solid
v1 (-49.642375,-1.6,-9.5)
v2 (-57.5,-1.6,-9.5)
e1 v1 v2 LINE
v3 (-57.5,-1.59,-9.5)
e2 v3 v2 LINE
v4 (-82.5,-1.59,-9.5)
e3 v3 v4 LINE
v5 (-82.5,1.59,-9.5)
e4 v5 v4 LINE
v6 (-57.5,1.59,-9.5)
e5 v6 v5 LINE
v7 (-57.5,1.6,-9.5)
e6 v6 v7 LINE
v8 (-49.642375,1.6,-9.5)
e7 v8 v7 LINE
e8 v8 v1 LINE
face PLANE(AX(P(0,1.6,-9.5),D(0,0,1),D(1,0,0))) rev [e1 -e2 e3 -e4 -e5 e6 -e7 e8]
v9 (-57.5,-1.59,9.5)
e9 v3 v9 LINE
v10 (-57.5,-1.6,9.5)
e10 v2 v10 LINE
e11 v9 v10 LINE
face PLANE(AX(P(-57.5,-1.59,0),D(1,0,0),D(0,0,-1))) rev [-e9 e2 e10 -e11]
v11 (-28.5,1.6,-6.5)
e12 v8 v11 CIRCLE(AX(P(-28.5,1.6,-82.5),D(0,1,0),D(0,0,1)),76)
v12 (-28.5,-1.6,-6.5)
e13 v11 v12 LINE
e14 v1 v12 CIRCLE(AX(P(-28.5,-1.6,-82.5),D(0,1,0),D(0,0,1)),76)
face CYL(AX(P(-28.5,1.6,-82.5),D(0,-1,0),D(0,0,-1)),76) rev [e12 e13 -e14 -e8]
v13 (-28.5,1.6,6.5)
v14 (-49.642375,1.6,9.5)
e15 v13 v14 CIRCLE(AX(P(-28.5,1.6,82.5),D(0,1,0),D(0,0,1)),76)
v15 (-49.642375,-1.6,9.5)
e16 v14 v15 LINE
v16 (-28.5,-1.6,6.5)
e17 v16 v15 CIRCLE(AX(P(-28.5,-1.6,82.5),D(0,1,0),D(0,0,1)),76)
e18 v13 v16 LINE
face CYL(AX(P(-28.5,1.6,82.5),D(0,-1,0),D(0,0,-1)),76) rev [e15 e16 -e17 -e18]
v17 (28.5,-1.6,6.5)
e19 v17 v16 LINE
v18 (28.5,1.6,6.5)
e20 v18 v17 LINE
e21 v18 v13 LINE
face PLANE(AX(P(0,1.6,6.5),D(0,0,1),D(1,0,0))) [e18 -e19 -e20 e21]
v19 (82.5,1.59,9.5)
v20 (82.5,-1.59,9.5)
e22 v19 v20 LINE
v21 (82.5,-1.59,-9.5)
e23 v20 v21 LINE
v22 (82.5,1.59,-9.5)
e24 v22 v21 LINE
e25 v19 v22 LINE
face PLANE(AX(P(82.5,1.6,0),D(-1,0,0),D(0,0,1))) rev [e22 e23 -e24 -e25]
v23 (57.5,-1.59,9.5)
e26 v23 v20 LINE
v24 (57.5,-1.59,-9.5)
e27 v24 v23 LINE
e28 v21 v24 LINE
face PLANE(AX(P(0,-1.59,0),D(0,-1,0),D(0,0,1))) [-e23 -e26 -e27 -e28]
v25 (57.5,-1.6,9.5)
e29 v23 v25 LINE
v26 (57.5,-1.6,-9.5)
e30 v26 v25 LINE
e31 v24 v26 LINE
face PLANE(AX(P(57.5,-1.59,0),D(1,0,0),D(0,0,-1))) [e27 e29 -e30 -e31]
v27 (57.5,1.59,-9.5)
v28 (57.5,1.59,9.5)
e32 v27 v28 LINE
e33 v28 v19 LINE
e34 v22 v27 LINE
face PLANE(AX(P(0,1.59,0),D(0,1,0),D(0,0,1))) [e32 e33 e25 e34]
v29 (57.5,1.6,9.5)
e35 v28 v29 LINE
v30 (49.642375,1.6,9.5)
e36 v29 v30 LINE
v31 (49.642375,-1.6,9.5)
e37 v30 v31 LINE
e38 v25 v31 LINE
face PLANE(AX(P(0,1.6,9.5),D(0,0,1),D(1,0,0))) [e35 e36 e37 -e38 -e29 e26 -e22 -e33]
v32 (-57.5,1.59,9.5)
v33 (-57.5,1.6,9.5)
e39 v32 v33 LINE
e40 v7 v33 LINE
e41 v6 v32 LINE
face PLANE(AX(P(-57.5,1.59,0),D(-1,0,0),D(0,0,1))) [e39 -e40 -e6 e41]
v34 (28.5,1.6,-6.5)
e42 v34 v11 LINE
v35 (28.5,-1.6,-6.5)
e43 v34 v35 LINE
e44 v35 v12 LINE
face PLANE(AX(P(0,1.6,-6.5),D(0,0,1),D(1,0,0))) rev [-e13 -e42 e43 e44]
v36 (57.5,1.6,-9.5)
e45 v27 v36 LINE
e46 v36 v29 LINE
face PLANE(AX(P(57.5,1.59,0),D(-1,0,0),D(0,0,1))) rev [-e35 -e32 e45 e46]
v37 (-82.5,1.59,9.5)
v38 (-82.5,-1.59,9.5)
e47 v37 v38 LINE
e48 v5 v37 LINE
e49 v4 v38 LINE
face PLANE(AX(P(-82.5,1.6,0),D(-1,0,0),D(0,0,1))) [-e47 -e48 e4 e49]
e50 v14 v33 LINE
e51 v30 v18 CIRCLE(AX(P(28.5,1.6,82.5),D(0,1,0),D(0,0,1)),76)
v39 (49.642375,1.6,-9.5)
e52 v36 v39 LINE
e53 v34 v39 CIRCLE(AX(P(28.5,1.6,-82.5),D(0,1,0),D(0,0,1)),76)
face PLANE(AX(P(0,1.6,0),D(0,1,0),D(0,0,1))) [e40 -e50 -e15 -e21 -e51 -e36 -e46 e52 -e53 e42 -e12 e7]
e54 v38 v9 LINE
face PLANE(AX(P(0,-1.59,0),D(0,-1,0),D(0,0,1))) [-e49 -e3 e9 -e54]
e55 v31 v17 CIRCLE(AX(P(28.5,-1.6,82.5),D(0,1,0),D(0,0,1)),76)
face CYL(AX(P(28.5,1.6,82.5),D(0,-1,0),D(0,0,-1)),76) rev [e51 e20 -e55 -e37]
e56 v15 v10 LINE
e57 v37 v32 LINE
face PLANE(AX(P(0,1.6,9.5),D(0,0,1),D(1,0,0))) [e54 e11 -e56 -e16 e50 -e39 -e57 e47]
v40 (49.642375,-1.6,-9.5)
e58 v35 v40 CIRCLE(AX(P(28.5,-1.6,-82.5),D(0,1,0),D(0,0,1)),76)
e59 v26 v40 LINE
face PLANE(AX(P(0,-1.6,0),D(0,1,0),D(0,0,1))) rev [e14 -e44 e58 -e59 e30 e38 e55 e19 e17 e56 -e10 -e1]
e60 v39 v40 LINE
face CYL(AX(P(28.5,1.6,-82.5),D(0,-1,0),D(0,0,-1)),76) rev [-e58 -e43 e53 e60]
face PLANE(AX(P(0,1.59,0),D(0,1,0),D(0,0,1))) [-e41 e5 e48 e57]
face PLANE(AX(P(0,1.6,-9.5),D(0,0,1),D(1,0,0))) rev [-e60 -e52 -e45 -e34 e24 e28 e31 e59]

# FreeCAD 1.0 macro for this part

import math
import FreeCAD as App
import Part
import Sketcher
from FreeCAD import Vector


def add_polygon(sketch, points):
    """Adds a closed chain of lines whose ends are joined by coincident constraints."""
    first, n = sketch.GeometryCount, len(points)
    for a, b in zip(points, points[1:] + points[:1]):
        sketch.addGeometry(Part.LineSegment(App.Vector(*a, 0), App.Vector(*b, 0)), False)
    for i in range(n):
        sketch.addConstraint(Sketcher.Constraint("Coincident", first + i, 2, first + (i + 1) % n, 1))

doc = App.newDocument("Part")
body = doc.addObject("PartDesign::Body", "Body")

sketch1 = body.newObject("Sketcher::SketchObject", "Sketch")
sketch1.AttachmentSupport = (doc.getObject("XZ_Plane"), [""])
sketch1.MapMode = "FlatFace"
sketch1.addGeometry(Part.LineSegment(Vector(-82, 10, 0), Vector(-50, 10, 0)), False)
sketch1.addGeometry(Part.ArcOfCircle(Part.Circle(Vector(-29, 82, 0), Vector(0, 0, 1), 76), math.radians(-106.15), math.radians(-90)), False)
sketch1.addGeometry(Part.LineSegment(Vector(-28, 6, 0), Vector(28, 6, 0)), False)
sketch1.addGeometry(Part.ArcOfCircle(Part.Circle(Vector(29, 82, 0), Vector(0, 0, 1), 76), math.radians(-90), math.radians(-73.85)), False)
sketch1.addGeometry(Part.LineSegment(Vector(50, 10, 0), Vector(82, 10, 0)), False)
sketch1.addGeometry(Part.LineSegment(Vector(82, 10, 0), Vector(82, -10, 0)), False)
sketch1.addGeometry(Part.LineSegment(Vector(82, -10, 0), Vector(50, -10, 0)), False)
sketch1.addGeometry(Part.ArcOfCircle(Part.Circle(Vector(29, -82, 0), Vector(0, 0, 1), 76), math.radians(73.85), math.radians(90)), False)
sketch1.addGeometry(Part.LineSegment(Vector(28, -6, 0), Vector(-28, -6, 0)), False)
sketch1.addGeometry(Part.ArcOfCircle(Part.Circle(Vector(-29, -82, 0), Vector(0, 0, 1), 76), math.radians(90), math.radians(106.15)), False)
sketch1.addGeometry(Part.LineSegment(Vector(-50, -10, 0), Vector(-82, -10, 0)), False)
sketch1.addGeometry(Part.LineSegment(Vector(-82, -10, 0), Vector(-82, 10, 0)), False)
sketch1.addConstraint(Sketcher.Constraint("Coincident", 0, 2, 1, 1))
sketch1.addConstraint(Sketcher.Constraint("Tangent", 1, 2, 2, 1))
sketch1.addConstraint(Sketcher.Constraint("Tangent", 2, 2, 3, 1))
sketch1.addConstraint(Sketcher.Constraint("Coincident", 3, 2, 4, 1))
sketch1.addConstraint(Sketcher.Constraint("Coincident", 4, 2, 5, 1))
sketch1.addConstraint(Sketcher.Constraint("Coincident", 5, 2, 6, 1))
sketch1.addConstraint(Sketcher.Constraint("Coincident", 6, 2, 7, 1))
sketch1.addConstraint(Sketcher.Constraint("Tangent", 7, 2, 8, 1))
sketch1.addConstraint(Sketcher.Constraint("Tangent", 8, 2, 9, 1))
sketch1.addConstraint(Sketcher.Constraint("Coincident", 9, 2, 10, 1))
sketch1.addConstraint(Sketcher.Constraint("Coincident", 10, 2, 11, 1))
sketch1.addConstraint(Sketcher.Constraint("Coincident", 11, 2, 0, 1))
sketch1.addConstraint(Sketcher.Constraint("Horizontal", 0))
sketch1.addConstraint(Sketcher.Constraint("Horizontal", 2))
sketch1.addConstraint(Sketcher.Constraint("Horizontal", 4))
sketch1.addConstraint(Sketcher.Constraint("Vertical", 5))
sketch1.addConstraint(Sketcher.Constraint("Horizontal", 6))
sketch1.addConstraint(Sketcher.Constraint("Horizontal", 8))
sketch1.addConstraint(Sketcher.Constraint("Horizontal", 10))
sketch1.addConstraint(Sketcher.Constraint("Vertical", 11))
sketch1.addConstraint(Sketcher.Constraint("Equal", 1, 3))
sketch1.addConstraint(Sketcher.Constraint("Equal", 3, 7))
sketch1.addConstraint(Sketcher.Constraint("Equal", 7, 9))
sketch1.addConstraint(Sketcher.Constraint("Symmetric", 1, 3, 7, 3, -1, 1))
sketch1.addConstraint(Sketcher.Constraint("Symmetric", 3, 2, 9, 2, -1, 1))
sketch1.addConstraint(Sketcher.Constraint("Symmetric", 5, 2, 11, 2, -1, 1))
sketch1.addConstraint(Sketcher.Constraint("Symmetric", 0, 2, 3, 2, -2))
sketch1.addConstraint(Sketcher.Constraint("Radius", 1, 76.0))
sketch1.addConstraint(Sketcher.Constraint("DistanceX", 2, 1, 2, 2, 57.0))
sketch1.addConstraint(Sketcher.Constraint("DistanceY", 5, 2, 5, 1, 19.0))
sketch1.addConstraint(Sketcher.Constraint("DistanceY", 7, 3, 3, 3, 165.0))
sketch1.addConstraint(Sketcher.Constraint("DistanceX", 2, 2, 4, 2, 54.0))
pad1 = body.newObject("PartDesign::Pad", "Pad")
pad1.Profile = sketch1
pad1.Length = 3.2
pad1.Midplane = True

sketch2 = body.newObject("Sketcher::SketchObject", "Sketch001")
sketch2.AttachmentSupport = (doc.getObject("XZ_Plane"), [""])
sketch2.MapMode = "FlatFace"
sketch2.AttachmentOffset = App.Placement(Vector(0, 0, -1.6), App.Rotation())
add_polygon(sketch2, [(-82, -10), (-82, 10), (-58, 10), (-58, -10)])
add_polygon(sketch2, [(58, -10), (58, 10), (82, 10), (82, -10)])
sketch2.addConstraint(Sketcher.Constraint("Vertical", 0))
sketch2.addConstraint(Sketcher.Constraint("Horizontal", 1))
sketch2.addConstraint(Sketcher.Constraint("Vertical", 2))
sketch2.addConstraint(Sketcher.Constraint("Horizontal", 3))
sketch2.addConstraint(Sketcher.Constraint("Vertical", 4))
sketch2.addConstraint(Sketcher.Constraint("Horizontal", 5))
sketch2.addConstraint(Sketcher.Constraint("Vertical", 6))
sketch2.addConstraint(Sketcher.Constraint("Horizontal", 7))
sketch2.addConstraint(Sketcher.Constraint("Symmetric", 2, 2, 4, 2, -1, 1))
sketch2.addConstraint(Sketcher.Constraint("Symmetric", 0, 2, 6, 2, -1, 1))
sketch2.addConstraint(Sketcher.Constraint("Horizontal", 1, 2, 4, 2))
sketch2.addConstraint(Sketcher.Constraint("DistanceX", 1, 1, 1, 2, 25.0))
sketch2.addConstraint(Sketcher.Constraint("DistanceY", 0, 1, 0, 2, 19.0))
sketch2.addConstraint(Sketcher.Constraint("DistanceX", 1, 2, 4, 2, 115.0))
pocket1 = body.newObject("PartDesign::Pocket", "Pocket")
pocket1.Profile = sketch2
pocket1.Length = 0.01
pocket1.Reversed = True
doc.recompute()

mirrored = body.newObject("PartDesign::Mirrored", "Mirrored")
mirrored.Originals = [pocket1]
mirrored.MirrorPlane = (doc.getObject("XZ_Plane"), [""])
body.Tip = mirrored

doc.recompute()
